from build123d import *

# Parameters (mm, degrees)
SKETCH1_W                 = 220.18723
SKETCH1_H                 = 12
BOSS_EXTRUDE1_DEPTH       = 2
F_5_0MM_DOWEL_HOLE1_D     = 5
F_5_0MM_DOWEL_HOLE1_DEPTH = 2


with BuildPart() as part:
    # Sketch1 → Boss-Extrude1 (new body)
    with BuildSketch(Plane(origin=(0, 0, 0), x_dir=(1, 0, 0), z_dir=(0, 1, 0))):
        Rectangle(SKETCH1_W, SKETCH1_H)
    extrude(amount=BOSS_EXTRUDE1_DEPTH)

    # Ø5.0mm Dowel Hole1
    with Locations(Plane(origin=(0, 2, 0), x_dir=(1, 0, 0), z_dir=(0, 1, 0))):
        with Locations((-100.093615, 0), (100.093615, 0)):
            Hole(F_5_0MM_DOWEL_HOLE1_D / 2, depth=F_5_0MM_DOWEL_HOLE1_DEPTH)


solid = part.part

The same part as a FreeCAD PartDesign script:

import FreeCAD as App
import Part
import Sketcher

doc = App.newDocument("Part")
body = doc.addObject("PartDesign::Body", "Body")

sketch1 = body.newObject("Sketcher::SketchObject", "Sketch")
sketch1.AttachmentSupport = (doc.getObject("XZ_Plane"), [""])
sketch1.MapMode = "FlatFace"
sketch1.addGeometry([
    Part.LineSegment(App.Vector(-110, -6, 0), App.Vector(-110, 6, 0)),
    Part.LineSegment(App.Vector(-110, 6, 0), App.Vector(110, 6, 0)),
    Part.LineSegment(App.Vector(110, 6, 0), App.Vector(110, -6, 0)),
    Part.LineSegment(App.Vector(110, -6, 0), App.Vector(-110, -6, 0)),
], False)
sketch1.addConstraint([
    Sketcher.Constraint("Coincident", 0, 2, 1, 1),
    Sketcher.Constraint("Coincident", 1, 2, 2, 1),
    Sketcher.Constraint("Coincident", 2, 2, 3, 1),
    Sketcher.Constraint("Coincident", 3, 2, 0, 1),
    Sketcher.Constraint("Vertical", 0),
    Sketcher.Constraint("Horizontal", 1),
    Sketcher.Constraint("Vertical", 2),
    Sketcher.Constraint("Horizontal", 3),
    Sketcher.Constraint("Symmetric", 0, 2, 2, 2, -1, 1),
    Sketcher.Constraint("DistanceY", 0, 1, 0, 2, 12.0),
    Sketcher.Constraint("DistanceX", 1, 1, 1, 2, 220.18723),
])
pad1 = body.newObject("PartDesign::Pad", "Pad")
pad1.Profile = sketch1
pad1.Length = 2
pad1.Reversed = True

sketch2 = body.newObject("Sketcher::SketchObject", "Sketch001")
sketch2.AttachmentSupport = (doc.getObject("XZ_Plane"), [""])
sketch2.MapMode = "FlatFace"
sketch2.AttachmentOffset = App.Placement(App.Vector(0, 0, -2), App.Rotation())
sketch2.addGeometry([
    Part.Circle(App.Vector(-100.1, 0, 0), App.Vector(0, 0, 1), 2.5),
    Part.Circle(App.Vector(100.1, 0, 0), App.Vector(0, 0, 1), 2.5),
], False)
sketch2.addConstraint([
    Sketcher.Constraint("Equal", 0, 1),
    Sketcher.Constraint("Symmetric", 0, 3, 1, 3, -1, 1),
    Sketcher.Constraint("PointOnObject", 0, 3, -1),
    Sketcher.Constraint("Diameter", 0, 5.0),
    Sketcher.Constraint("DistanceX", 0, 3, 1, 3, 200.18723),
])
doc.recompute()
hole = body.newObject("PartDesign::Hole", "Hole")
hole.Profile = sketch2
hole.ThreadType = "None"
hole.Diameter = 5
hole.DepthType = "Dimension"
hole.Depth = 2
hole.DrillPoint = "Flat"
hole.Reversed = True

doc.recompute()
